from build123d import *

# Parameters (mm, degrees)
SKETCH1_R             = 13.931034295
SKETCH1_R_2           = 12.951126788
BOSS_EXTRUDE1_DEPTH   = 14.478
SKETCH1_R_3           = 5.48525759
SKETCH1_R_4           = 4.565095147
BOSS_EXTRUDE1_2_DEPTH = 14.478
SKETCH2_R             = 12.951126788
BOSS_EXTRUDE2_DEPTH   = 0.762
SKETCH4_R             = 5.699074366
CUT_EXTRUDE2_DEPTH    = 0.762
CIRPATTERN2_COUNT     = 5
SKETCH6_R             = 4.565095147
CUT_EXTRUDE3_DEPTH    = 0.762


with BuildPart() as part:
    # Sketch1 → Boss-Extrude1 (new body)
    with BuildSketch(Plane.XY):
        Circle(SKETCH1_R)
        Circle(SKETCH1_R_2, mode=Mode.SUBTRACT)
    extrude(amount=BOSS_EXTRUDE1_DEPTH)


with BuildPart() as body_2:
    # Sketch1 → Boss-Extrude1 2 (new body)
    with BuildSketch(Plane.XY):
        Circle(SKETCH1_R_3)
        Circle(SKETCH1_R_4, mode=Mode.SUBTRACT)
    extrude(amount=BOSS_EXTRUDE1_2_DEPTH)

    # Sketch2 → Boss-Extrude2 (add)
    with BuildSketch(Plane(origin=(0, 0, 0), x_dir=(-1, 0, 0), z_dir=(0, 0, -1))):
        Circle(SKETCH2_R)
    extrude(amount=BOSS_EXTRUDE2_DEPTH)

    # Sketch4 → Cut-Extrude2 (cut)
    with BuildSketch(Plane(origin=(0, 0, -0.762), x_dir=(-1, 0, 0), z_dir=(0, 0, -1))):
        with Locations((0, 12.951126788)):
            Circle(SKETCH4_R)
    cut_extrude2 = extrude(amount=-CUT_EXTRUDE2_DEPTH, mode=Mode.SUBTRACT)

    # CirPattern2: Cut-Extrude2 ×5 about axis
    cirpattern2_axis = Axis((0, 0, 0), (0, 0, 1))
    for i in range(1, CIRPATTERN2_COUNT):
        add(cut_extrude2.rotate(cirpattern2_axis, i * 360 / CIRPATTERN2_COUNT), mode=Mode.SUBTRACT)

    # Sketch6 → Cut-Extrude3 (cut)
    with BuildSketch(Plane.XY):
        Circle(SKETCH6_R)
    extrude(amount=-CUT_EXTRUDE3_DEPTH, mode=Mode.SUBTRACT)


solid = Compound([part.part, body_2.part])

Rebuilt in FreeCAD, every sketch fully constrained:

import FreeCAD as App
import Part
import Sketcher

V = App.Vector
Q = App.Units.Quantity

doc = App.newDocument("Part")
body = doc.addObject("PartDesign::Body", "Body")

sketch1 = body.newObject("Sketcher::SketchObject", "Sketch")
sketch1.AttachmentSupport = (doc.getObject("XY_Plane"), [""])
sketch1.MapMode = "FlatFace"
sketch1.addGeometry(Part.Circle(V(0, 0, 0), V(0, 0, 1), 13.931034), False)
sketch1.addGeometry(Part.Circle(V(0, 0, 0), V(0, 0, 1), 12.951127), False)
sketch1.addConstraint(Sketcher.Constraint("Coincident", 0, 3, -1, 1))
sketch1.addConstraint(Sketcher.Constraint("Coincident", 1, 3, -1, 1))
sketch1.addConstraint(Sketcher.Constraint("Diameter", 0, Q("27.862069 mm")))
sketch1.addConstraint(Sketcher.Constraint("Diameter", 1, Q("25.902254 mm")))
pad1 = body.newObject("PartDesign::Pad", "Pad")
pad1.Profile = sketch1
pad1.Length = Q("0.57 in")
body2 = doc.addObject("PartDesign::Body", "Body001")

sketch2 = body2.newObject("Sketcher::SketchObject", "Sketch001")
sketch2.AttachmentSupport = (doc.getObject("XY_Plane001"), [""])
sketch2.MapMode = "FlatFace"
sketch2.addGeometry(Part.Circle(V(0, 0, 0), V(0, 0, 1), 5.485258), False)
sketch2.addGeometry(Part.Circle(V(0, 0, 0), V(0, 0, 1), 4.565095), False)
sketch2.addConstraint(Sketcher.Constraint("Coincident", 0, 3, -1, 1))
sketch2.addConstraint(Sketcher.Constraint("Coincident", 1, 3, -1, 1))
sketch2.addConstraint(Sketcher.Constraint("Diameter", 1, Q("9.13019 mm")))
sketch2.addConstraint(Sketcher.Constraint("Diameter", 0, Q("10.970515 mm")))
pad2 = body2.newObject("PartDesign::Pad", "Pad001")
pad2.Profile = sketch2
pad2.Length = Q("0.57 in")

sketch3 = body2.newObject("Sketcher::SketchObject", "Sketch002")
sketch3.AttachmentSupport = (doc.getObject("XY_Plane001"), [""])
sketch3.MapMode = "FlatFace"
sketch3.addGeometry(Part.Circle(V(0, 0, 0), V(0, 0, 1), 12.951127), False)
sketch3.addConstraint(Sketcher.Constraint("Coincident", 0, 3, -1, 1))
sketch3.addConstraint(Sketcher.Constraint("Diameter", 0, Q("25.902254 mm")))
pad3 = body2.newObject("PartDesign::Pad", "Pad002")
pad3.Profile = sketch3
pad3.Length = Q("0.03 in")
pad3.Reversed = True

sketch4 = body2.newObject("Sketcher::SketchObject", "Sketch003")
sketch4.AttachmentSupport = (doc.getObject("XY_Plane001"), [""])
sketch4.MapMode = "FlatFace"
sketch4.AttachmentOffset = App.Placement(V(0, 0, -0.03 * 25.4), App.Rotation())
sketch4.addGeometry(Part.Circle(V(0, 12.951127, 0), V(0, 0, 1), 5.699074), False)
sketch4.addConstraint(Sketcher.Constraint("PointOnObject", 0, 3, -2))
sketch4.addConstraint(Sketcher.Constraint("Diameter", 0, Q("11.398149 mm")))
sketch4.addConstraint(Sketcher.Constraint("DistanceY", -1, 1, 0, 3, Q("12.951127 mm")))
pocket1 = body2.newObject("PartDesign::Pocket", "Pocket")
pocket1.Profile = sketch4
pocket1.Length = Q("0.03 in")
pocket1.Reversed = True
doc.recompute()

polarpattern = body2.newObject("PartDesign::PolarPattern", "PolarPattern")
polarpattern.Originals = [pocket1]
polarpattern.Axis = (doc.getObject("Z_Axis001"), [""])
polarpattern.Angle = 360
polarpattern.Occurrences = 5
body2.Tip = polarpattern

sketch5 = body2.newObject("Sketcher::SketchObject", "Sketch004")
sketch5.AttachmentSupport = (doc.getObject("XY_Plane001"), [""])
sketch5.MapMode = "FlatFace"
sketch5.addGeometry(Part.Circle(V(0, 0, 0), V(0, 0, 1), 4.565095), False)
sketch5.addConstraint(Sketcher.Constraint("Coincident", 0, 3, -1, 1))
sketch5.addConstraint(Sketcher.Constraint("Diameter", 0, Q("9.13019 mm")))
pocket2 = body2.newObject("PartDesign::Pocket", "Pocket001")
pocket2.Profile = sketch5
pocket2.Length = Q("0.03 in")

doc.recompute()
